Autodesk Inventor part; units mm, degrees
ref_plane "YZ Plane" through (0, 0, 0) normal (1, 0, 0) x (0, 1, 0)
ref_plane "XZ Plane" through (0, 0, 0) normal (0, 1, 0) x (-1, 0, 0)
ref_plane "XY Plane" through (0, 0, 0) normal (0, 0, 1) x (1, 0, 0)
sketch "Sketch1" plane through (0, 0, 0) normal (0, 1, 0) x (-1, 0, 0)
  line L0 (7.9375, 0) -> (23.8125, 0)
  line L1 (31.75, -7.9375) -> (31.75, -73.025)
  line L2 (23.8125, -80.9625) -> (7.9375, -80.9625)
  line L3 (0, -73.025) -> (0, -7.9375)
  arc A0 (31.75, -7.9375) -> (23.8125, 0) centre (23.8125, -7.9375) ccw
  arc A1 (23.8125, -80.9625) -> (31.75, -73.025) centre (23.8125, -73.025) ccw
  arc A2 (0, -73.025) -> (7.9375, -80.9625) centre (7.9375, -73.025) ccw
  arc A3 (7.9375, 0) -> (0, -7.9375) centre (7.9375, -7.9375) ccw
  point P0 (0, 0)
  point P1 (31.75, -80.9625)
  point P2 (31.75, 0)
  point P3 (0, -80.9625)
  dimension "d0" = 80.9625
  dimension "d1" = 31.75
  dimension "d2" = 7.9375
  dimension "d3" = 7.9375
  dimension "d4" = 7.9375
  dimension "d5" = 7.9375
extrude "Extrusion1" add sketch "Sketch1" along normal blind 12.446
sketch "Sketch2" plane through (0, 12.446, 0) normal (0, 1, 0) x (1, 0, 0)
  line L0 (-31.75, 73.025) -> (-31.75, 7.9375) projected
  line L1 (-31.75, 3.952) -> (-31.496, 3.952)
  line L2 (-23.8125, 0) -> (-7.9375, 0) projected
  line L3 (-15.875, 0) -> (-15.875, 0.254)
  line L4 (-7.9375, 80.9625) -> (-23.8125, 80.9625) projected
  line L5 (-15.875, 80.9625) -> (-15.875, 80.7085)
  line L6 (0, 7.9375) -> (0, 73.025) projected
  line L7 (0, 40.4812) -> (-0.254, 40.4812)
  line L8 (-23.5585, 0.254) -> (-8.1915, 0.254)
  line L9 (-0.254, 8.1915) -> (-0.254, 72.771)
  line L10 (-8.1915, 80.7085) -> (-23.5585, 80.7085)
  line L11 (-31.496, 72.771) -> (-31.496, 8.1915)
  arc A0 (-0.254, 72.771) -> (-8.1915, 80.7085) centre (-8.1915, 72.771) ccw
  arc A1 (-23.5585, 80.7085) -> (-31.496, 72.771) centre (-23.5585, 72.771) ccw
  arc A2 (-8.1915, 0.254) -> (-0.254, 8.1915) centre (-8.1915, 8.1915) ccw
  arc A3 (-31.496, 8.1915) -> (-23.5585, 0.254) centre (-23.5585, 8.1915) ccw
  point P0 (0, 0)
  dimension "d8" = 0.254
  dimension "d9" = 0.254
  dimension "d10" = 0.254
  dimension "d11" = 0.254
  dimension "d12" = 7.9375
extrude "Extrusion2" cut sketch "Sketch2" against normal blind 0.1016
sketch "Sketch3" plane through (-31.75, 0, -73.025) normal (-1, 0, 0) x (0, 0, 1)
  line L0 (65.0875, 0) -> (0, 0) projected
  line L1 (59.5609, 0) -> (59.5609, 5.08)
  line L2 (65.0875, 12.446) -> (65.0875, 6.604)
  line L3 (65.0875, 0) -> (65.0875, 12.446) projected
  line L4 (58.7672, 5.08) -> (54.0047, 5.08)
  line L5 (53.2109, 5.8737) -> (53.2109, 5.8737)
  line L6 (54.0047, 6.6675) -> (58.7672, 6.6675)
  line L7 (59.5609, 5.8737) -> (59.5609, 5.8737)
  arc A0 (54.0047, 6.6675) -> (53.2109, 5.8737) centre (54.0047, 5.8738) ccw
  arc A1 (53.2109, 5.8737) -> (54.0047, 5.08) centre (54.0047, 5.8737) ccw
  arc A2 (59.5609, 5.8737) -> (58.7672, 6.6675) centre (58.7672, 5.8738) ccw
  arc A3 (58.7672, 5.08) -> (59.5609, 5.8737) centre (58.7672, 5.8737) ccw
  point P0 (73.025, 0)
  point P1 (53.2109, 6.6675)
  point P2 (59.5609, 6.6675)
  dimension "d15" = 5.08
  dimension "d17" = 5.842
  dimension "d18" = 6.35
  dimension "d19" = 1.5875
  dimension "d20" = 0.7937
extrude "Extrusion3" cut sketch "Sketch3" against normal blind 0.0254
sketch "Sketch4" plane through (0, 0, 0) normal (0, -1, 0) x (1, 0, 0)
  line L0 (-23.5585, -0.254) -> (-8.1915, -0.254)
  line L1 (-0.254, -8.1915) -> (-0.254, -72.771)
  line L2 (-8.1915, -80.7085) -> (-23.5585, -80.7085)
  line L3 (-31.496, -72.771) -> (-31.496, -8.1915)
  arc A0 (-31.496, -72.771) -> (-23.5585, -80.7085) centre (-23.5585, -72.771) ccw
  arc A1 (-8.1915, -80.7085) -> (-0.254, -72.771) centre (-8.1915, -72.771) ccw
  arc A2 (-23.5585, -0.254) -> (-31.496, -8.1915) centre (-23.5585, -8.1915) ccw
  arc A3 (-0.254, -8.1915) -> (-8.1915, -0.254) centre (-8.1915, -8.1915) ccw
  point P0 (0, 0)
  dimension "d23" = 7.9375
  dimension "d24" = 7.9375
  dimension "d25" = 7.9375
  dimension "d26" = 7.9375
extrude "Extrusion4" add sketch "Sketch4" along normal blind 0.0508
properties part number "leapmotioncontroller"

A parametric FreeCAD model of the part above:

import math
import FreeCAD as App
import Part
import Sketcher

V = App.Vector
Q = App.Units.Quantity

doc = App.newDocument("Part")
body = doc.addObject("PartDesign::Body", "Body")

# Sketch on XZ plane
sketch1 = body.newObject("Sketcher::SketchObject", "Sketch")
sketch1.AttachmentSupport = (doc.getObject("XZ_Plane"), [""])
sketch1.MapMode = "FlatFace"
sketch1.addGeometry([
    Part.LineSegment(V(-24, 0, 0), V(-8, 0, 0)),  # 0
    Part.ArcOfCircle(Part.Circle(V(-8, -8, 0), V(0, 0, 1), 8), math.radians(0), math.radians(90)),  # 1
    Part.LineSegment(V(0, -8, 0), V(0, -73, 0)),  # 2
    Part.ArcOfCircle(Part.Circle(V(-8, -73, 0), V(0, 0, 1), 8), math.radians(-90), math.radians(0)),  # 3
    Part.LineSegment(V(-8, -81, 0), V(-24, -81, 0)),  # 4
    Part.ArcOfCircle(Part.Circle(V(-24, -73, 0), V(0, 0, 1), 8), math.radians(180), math.radians(270)),  # 5
    Part.LineSegment(V(-32, -73, 0), V(-32, -8, 0)),  # 6
    Part.ArcOfCircle(Part.Circle(V(-24, -8, 0), V(0, 0, 1), 8), math.radians(90), math.radians(180)),  # 7
], False)
sketch1.addConstraint([
    Sketcher.Constraint("Tangent", 0, 2, 1, 2),
    Sketcher.Constraint("Tangent", 1, 1, 2, 1),
    Sketcher.Constraint("Tangent", 2, 2, 3, 2),
    Sketcher.Constraint("Tangent", 3, 1, 4, 1),
    Sketcher.Constraint("Tangent", 4, 2, 5, 2),
    Sketcher.Constraint("Tangent", 5, 1, 6, 1),
    Sketcher.Constraint("Tangent", 6, 2, 7, 2),
    Sketcher.Constraint("Tangent", 7, 1, 0, 1),
    Sketcher.Constraint("Horizontal", 0),
    Sketcher.Constraint("Vertical", 2),
    Sketcher.Constraint("Horizontal", 4),
    Sketcher.Constraint("Vertical", 6),
    Sketcher.Constraint("Equal", 1, 3),
    Sketcher.Constraint("Equal", 3, 5),
    Sketcher.Constraint("Equal", 5, 7),
    Sketcher.Constraint("PointOnObject", 0, 2, -1),
    Sketcher.Constraint("PointOnObject", 1, 1, -2),
    Sketcher.Constraint("Radius", 1, Q("0.3125 in")),
    Sketcher.Constraint("DistanceX", 5, 1, -1, 1, Q("1.25 in")),
    Sketcher.Constraint("DistanceY", 3, 1, -1, 1, Q("3.1875 in")),
])
pad1 = body.newObject("PartDesign::Pad", "Pad")
pad1.Profile = sketch1
pad1.Length = Q("0.49 in")
pad1.Reversed = True

# Sketch on XZ plane
sketch2 = body.newObject("Sketcher::SketchObject", "Sketch001")
sketch2.AttachmentSupport = (doc.getObject("XZ_Plane"), [""])
sketch2.MapMode = "FlatFace"
sketch2.AttachmentOffset = App.Placement(V(0, 0, -0.49 * 25.4), App.Rotation())
sketch2.addGeometry([
    Part.ArcOfCircle(Part.Circle(V(-24, -8, 0), V(0, 0, 1), 8), math.radians(90), math.radians(180)),  # 0
    Part.LineSegment(V(-24, 0, 0), V(-8, 0, 0)),  # 1
    Part.ArcOfCircle(Part.Circle(V(-8, -8, 0), V(0, 0, 1), 8), math.radians(0), math.radians(90)),  # 2
    Part.LineSegment(V(0, -8, 0), V(0, -73, 0)),  # 3
    Part.ArcOfCircle(Part.Circle(V(-8, -73, 0), V(0, 0, 1), 8), math.radians(-90), math.radians(0)),  # 4
    Part.LineSegment(V(-8, -81, 0), V(-24, -81, 0)),  # 5
    Part.ArcOfCircle(Part.Circle(V(-24, -73, 0), V(0, 0, 1), 8), math.radians(180), math.radians(270)),  # 6
    Part.LineSegment(V(-31, -73, 0), V(-31, -8, 0)),  # 7
], False)
sketch2.addConstraint([
    Sketcher.Constraint("Tangent", 0, 1, 1, 1),
    Sketcher.Constraint("Tangent", 1, 2, 2, 2),
    Sketcher.Constraint("Tangent", 2, 1, 3, 1),
    Sketcher.Constraint("Tangent", 3, 2, 4, 2),
    Sketcher.Constraint("Tangent", 4, 1, 5, 1),
    Sketcher.Constraint("Tangent", 5, 2, 6, 2),
    Sketcher.Constraint("Tangent", 6, 1, 7, 1),
    Sketcher.Constraint("Tangent", 7, 2, 0, 2),
    Sketcher.Constraint("Horizontal", 1),
    Sketcher.Constraint("Vertical", 3),
    Sketcher.Constraint("Horizontal", 5),
    Sketcher.Constraint("Vertical", 7),
    Sketcher.Constraint("Equal", 0, 2),
    Sketcher.Constraint("Equal", 2, 4),
    Sketcher.Constraint("Equal", 4, 6),
    Sketcher.Constraint("Radius", 0, Q("0.3125 in")),
    Sketcher.Constraint("DistanceY", 0, 1, -1, 1, Q("0.01 in")),
    Sketcher.Constraint("DistanceX", 2, 1, -1, 1, Q("0.01 in")),
    Sketcher.Constraint("DistanceX", 1, 1, 1, 2, Q("0.605 in")),
    Sketcher.Constraint("DistanceY", 3, 2, 3, 1, Q("2.5425 in")),
])
pocket1 = body.newObject("PartDesign::Pocket", "Pocket")
pocket1.Profile = sketch2
pocket1.Length = Q("0.004 in")
pocket1.Reversed = True

# Sketch on YZ plane
sketch3 = body.newObject("Sketcher::SketchObject", "Sketch002")
sketch3.AttachmentSupport = (doc.getObject("YZ_Plane"), [""])
sketch3.MapMode = "FlatFace"
sketch3.AttachmentOffset = App.Placement(V(0, 0, -1.25 * 25.4), App.Rotation())
sketch3.addGeometry([
    Part.LineSegment(V(5.1, -19, 0), V(5.1, -14.3, 0)),  # 0
    Part.ArcOfCircle(Part.Circle(V(5.9, -14.3, 0), V(0, 0, 1), 0.8), math.radians(90), math.radians(180)),  # 1
    Part.ArcOfCircle(Part.Circle(V(5.9, -14.3, 0), V(0, 0, 1), 0.8), math.radians(0), math.radians(90)),  # 2
    Part.LineSegment(V(6.7, -14.3, 0), V(6.7, -19, 0)),  # 3
    Part.ArcOfCircle(Part.Circle(V(5.9, -19, 0), V(0, 0, 1), 0.8), math.radians(-90), math.radians(0)),  # 4
    Part.ArcOfCircle(Part.Circle(V(5.9, -19, 0), V(0, 0, 1), 0.8), math.radians(180), math.radians(270)),  # 5
], False)
sketch3.addConstraint([
    Sketcher.Constraint("Tangent", 0, 2, 1, 2),
    Sketcher.Constraint("Tangent", 1, 1, 2, 2),
    Sketcher.Constraint("Tangent", 2, 1, 3, 1),
    Sketcher.Constraint("Tangent", 3, 2, 4, 2),
    Sketcher.Constraint("Tangent", 4, 1, 5, 2),
    Sketcher.Constraint("Tangent", 5, 1, 0, 1),
    Sketcher.Constraint("Vertical", 0),
    Sketcher.Constraint("Vertical", 3),
    Sketcher.Constraint("Equal", 1, 2),
    Sketcher.Constraint("Equal", 2, 4),
    Sketcher.Constraint("Vertical", 5, 3, 1, 1),
    Sketcher.Constraint("Vertical", 1, 1, 4, 1),
    Sketcher.Constraint("Radius", 1, Q("0.031248 in")),
    Sketcher.Constraint("DistanceX", -1, 1, 0, 2, Q("0.2 in")),
    Sketcher.Constraint("DistanceY", 0, 1, 0, 2, Q("0.1875 in")),
    Sketcher.Constraint("DistanceY", 1, 3, -1, 1, 14.2578),
])
pocket2 = body.newObject("PartDesign::Pocket", "Pocket001")
pocket2.Profile = sketch3
pocket2.Length = Q("0.001 in")
pocket2.Reversed = True

# Sketch on XZ plane
sketch4 = body.newObject("Sketcher::SketchObject", "Sketch003")
sketch4.AttachmentSupport = (doc.getObject("XZ_Plane"), [""])
sketch4.MapMode = "FlatFace"
sketch4.addGeometry([
    Part.LineSegment(V(-8, 0, 0), V(-24, 0, 0)),  # 0
    Part.ArcOfCircle(Part.Circle(V(-24, -8, 0), V(0, 0, 1), 8), math.radians(90), math.radians(180)),  # 1
    Part.LineSegment(V(-31, -8, 0), V(-31, -73, 0)),  # 2
    Part.ArcOfCircle(Part.Circle(V(-24, -73, 0), V(0, 0, 1), 8), math.radians(180), math.radians(270)),  # 3
    Part.LineSegment(V(-24, -81, 0), V(-8, -81, 0)),  # 4
    Part.ArcOfCircle(Part.Circle(V(-8, -73, 0), V(0, 0, 1), 8), math.radians(-90), math.radians(0)),  # 5
    Part.LineSegment(V(0, -73, 0), V(0, -8, 0)),  # 6
    Part.ArcOfCircle(Part.Circle(V(-8, -8, 0), V(0, 0, 1), 8), math.radians(0), math.radians(90)),  # 7
], False)
sketch4.addConstraint([
    Sketcher.Constraint("Tangent", 0, 2, 1, 1),
    Sketcher.Constraint("Tangent", 1, 2, 2, 1),
    Sketcher.Constraint("Tangent", 2, 2, 3, 1),
    Sketcher.Constraint("Tangent", 3, 2, 4, 1),
    Sketcher.Constraint("Tangent", 4, 2, 5, 1),
    Sketcher.Constraint("Tangent", 5, 2, 6, 1),
    Sketcher.Constraint("Tangent", 6, 2, 7, 1),
    Sketcher.Constraint("Tangent", 7, 2, 0, 1),
    Sketcher.Constraint("Horizontal", 0),
    Sketcher.Constraint("Vertical", 2),
    Sketcher.Constraint("Horizontal", 4),
    Sketcher.Constraint("Vertical", 6),
    Sketcher.Constraint("Equal", 1, 3),
    Sketcher.Constraint("Equal", 3, 5),
    Sketcher.Constraint("Equal", 5, 7),
    Sketcher.Constraint("Radius", 1, Q("0.3125 in")),
    Sketcher.Constraint("DistanceX", 0, 2, 0, 1, Q("0.605 in")),
    Sketcher.Constraint("DistanceY", 0, 2, -1, 1, Q("0.01 in")),
    Sketcher.Constraint("DistanceX", 1, 2, -1, 1, Q("1.24 in")),
    Sketcher.Constraint("DistanceY", 2, 2, 2, 1, Q("2.5425 in")),
])
pad2 = body.newObject("PartDesign::Pad", "Pad001")
pad2.Profile = sketch4
pad2.Length = Q("0.002 in")

doc.recompute()
